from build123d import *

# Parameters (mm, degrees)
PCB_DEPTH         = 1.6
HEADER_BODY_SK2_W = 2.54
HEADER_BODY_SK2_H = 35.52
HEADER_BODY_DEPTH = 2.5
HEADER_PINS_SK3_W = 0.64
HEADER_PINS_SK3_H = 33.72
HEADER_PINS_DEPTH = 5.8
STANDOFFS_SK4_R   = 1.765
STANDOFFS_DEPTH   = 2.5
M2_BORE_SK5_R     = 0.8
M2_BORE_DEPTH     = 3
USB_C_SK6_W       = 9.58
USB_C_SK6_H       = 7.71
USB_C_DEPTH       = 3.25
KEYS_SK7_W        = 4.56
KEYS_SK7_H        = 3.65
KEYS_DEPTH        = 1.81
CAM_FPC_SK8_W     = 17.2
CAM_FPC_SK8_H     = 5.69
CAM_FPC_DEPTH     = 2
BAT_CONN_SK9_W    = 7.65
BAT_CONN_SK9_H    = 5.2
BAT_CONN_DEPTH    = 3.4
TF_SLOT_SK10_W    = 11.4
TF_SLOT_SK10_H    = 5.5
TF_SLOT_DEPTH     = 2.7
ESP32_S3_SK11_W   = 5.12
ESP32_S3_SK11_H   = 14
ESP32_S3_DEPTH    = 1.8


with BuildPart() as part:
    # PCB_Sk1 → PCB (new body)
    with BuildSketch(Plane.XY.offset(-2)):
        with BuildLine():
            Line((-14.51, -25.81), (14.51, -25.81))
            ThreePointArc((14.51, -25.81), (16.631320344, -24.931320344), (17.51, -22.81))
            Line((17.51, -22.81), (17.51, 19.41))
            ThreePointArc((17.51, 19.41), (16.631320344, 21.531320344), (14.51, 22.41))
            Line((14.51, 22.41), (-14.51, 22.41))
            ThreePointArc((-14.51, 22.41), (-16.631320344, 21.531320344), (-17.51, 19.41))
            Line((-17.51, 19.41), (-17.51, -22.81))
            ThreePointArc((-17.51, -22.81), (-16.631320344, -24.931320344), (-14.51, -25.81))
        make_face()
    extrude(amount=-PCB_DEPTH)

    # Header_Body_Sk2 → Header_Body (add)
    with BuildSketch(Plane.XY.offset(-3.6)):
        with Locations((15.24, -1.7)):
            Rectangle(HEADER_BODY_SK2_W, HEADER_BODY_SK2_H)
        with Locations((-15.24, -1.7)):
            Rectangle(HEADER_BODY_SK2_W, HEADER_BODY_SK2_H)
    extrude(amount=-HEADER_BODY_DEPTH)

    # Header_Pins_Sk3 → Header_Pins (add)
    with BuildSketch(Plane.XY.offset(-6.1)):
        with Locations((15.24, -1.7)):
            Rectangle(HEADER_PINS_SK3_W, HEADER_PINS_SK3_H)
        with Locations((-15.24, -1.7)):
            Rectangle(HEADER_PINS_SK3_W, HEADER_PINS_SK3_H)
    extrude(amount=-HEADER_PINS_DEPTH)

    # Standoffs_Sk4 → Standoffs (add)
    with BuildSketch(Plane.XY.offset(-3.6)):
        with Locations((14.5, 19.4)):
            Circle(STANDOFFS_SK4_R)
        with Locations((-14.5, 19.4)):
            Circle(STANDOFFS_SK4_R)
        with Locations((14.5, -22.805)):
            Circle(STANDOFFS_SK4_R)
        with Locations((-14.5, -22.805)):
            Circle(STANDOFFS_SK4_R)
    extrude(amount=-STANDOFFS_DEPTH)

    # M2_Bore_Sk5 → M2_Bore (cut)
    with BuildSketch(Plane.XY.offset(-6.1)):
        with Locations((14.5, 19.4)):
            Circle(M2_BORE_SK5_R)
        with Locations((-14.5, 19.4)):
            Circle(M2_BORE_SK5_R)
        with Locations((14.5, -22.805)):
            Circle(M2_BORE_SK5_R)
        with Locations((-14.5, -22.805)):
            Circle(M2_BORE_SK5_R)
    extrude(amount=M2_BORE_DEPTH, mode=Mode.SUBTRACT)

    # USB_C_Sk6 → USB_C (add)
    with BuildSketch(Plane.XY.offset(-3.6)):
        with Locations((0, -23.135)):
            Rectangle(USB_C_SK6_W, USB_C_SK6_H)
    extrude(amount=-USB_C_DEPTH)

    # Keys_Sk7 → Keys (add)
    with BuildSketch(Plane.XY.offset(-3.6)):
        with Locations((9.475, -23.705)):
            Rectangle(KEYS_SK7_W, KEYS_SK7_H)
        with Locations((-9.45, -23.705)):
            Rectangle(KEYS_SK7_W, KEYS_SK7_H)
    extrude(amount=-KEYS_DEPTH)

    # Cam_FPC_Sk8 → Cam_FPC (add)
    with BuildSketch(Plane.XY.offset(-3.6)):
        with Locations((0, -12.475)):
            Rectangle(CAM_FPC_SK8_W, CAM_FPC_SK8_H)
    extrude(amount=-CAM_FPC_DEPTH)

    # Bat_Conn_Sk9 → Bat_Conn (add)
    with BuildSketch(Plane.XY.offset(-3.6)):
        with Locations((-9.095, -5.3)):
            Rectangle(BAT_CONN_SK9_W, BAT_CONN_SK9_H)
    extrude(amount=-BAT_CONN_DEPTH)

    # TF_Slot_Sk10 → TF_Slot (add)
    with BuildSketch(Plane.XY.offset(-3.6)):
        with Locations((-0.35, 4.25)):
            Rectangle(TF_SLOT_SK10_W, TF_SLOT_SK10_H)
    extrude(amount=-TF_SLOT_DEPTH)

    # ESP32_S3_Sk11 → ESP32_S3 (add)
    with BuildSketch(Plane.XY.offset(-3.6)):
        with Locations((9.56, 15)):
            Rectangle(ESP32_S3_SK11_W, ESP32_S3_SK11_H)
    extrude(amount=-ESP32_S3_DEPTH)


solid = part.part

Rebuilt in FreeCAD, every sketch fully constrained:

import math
import FreeCAD as App
import Part
import Sketcher

doc = App.newDocument("Part")
body = doc.addObject("PartDesign::Body", "Body")

# Sketch on XY plane
sketch1 = body.newObject("Sketcher::SketchObject", "Sketch")
sketch1.AttachmentSupport = (doc.getObject("XY_Plane"), [""])
sketch1.MapMode = "FlatFace"
sketch1.AttachmentOffset = App.Placement(App.Vector(0, 0, -2), App.Rotation())
sketch1.addGeometry([
    Part.LineSegment(App.Vector(-14.5, -25.8, 0), App.Vector(14.5, -25.8, 0)),  # 0
    Part.ArcOfCircle(Part.Circle(App.Vector(14.5, -22.8, 0), App.Vector(0, 0, 1), 3), math.radians(-90), math.radians(0)),  # 1
    Part.LineSegment(App.Vector(17.5, -22.8, 0), App.Vector(17.5, 19.4, 0)),  # 2
    Part.ArcOfCircle(Part.Circle(App.Vector(14.5, 19.4, 0), App.Vector(0, 0, 1), 3), math.radians(0), math.radians(90)),  # 3
    Part.LineSegment(App.Vector(14.5, 22.4, 0), App.Vector(-14.5, 22.4, 0)),  # 4
    Part.ArcOfCircle(Part.Circle(App.Vector(-14.5, 19.4, 0), App.Vector(0, 0, 1), 3), math.radians(90), math.radians(180)),  # 5
    Part.LineSegment(App.Vector(-17.5, 19.4, 0), App.Vector(-17.5, -22.8, 0)),  # 6
    Part.ArcOfCircle(Part.Circle(App.Vector(-14.5, -22.8, 0), App.Vector(0, 0, 1), 3), math.radians(180), math.radians(270)),  # 7
], False)
sketch1.addConstraint([
    Sketcher.Constraint("Tangent", 0, 2, 1, 1),
    Sketcher.Constraint("Tangent", 1, 2, 2, 1),
    Sketcher.Constraint("Tangent", 2, 2, 3, 1),
    Sketcher.Constraint("Tangent", 3, 2, 4, 1),
    Sketcher.Constraint("Tangent", 4, 2, 5, 1),
    Sketcher.Constraint("Tangent", 5, 2, 6, 1),
    Sketcher.Constraint("Tangent", 6, 2, 7, 1),
    Sketcher.Constraint("Tangent", 7, 2, 0, 1),
    Sketcher.Constraint("Horizontal", 0),
    Sketcher.Constraint("Vertical", 2),
    Sketcher.Constraint("Horizontal", 4),
    Sketcher.Constraint("Vertical", 6),
    Sketcher.Constraint("Equal", 1, 3),
    Sketcher.Constraint("Equal", 3, 5),
    Sketcher.Constraint("Equal", 5, 7),
    Sketcher.Constraint("Radius", 1, 3.0),
    Sketcher.Constraint("DistanceX", 0, 1, 0, 2, 29.02),
    Sketcher.Constraint("DistanceY", 2, 1, 2, 2, 42.22),
    Sketcher.Constraint("DistanceX", -1, 1, 1, 3, 14.51),
    Sketcher.Constraint("DistanceY", 1, 3, -1, 1, 22.81),
])
pad1 = body.newObject("PartDesign::Pad", "Pad")
pad1.Profile = sketch1
pad1.Length = 1.6
pad1.Reversed = True

# Sketch on XY plane
sketch2 = body.newObject("Sketcher::SketchObject", "Sketch001")
sketch2.AttachmentSupport = (doc.getObject("XY_Plane"), [""])
sketch2.MapMode = "FlatFace"
sketch2.AttachmentOffset = App.Placement(App.Vector(0, 0, -3.6), App.Rotation())
sketch2.addGeometry([
    Part.LineSegment(App.Vector(14, 16.1, 0), App.Vector(14, -19.5, 0)),  # 0
    Part.LineSegment(App.Vector(14, -19.5, 0), App.Vector(16.5, -19.5, 0)),  # 1
    Part.LineSegment(App.Vector(16.5, -19.5, 0), App.Vector(16.5, 16.1, 0)),  # 2
    Part.LineSegment(App.Vector(16.5, 16.1, 0), App.Vector(14, 16.1, 0)),  # 3
    Part.LineSegment(App.Vector(-16.5, 16.1, 0), App.Vector(-16.5, -19.5, 0)),  # 4
    Part.LineSegment(App.Vector(-16.5, -19.5, 0), App.Vector(-14, -19.5, 0)),  # 5
    Part.LineSegment(App.Vector(-14, -19.5, 0), App.Vector(-14, 16.1, 0)),  # 6
    Part.LineSegment(App.Vector(-14, 16.1, 0), App.Vector(-16.5, 16.1, 0)),  # 7
], False)
sketch2.addConstraint([
    Sketcher.Constraint("Coincident", 0, 2, 1, 1),
    Sketcher.Constraint("Coincident", 1, 2, 2, 1),
    Sketcher.Constraint("Coincident", 2, 2, 3, 1),
    Sketcher.Constraint("Coincident", 3, 2, 0, 1),
    Sketcher.Constraint("Coincident", 4, 2, 5, 1),
    Sketcher.Constraint("Coincident", 5, 2, 6, 1),
    Sketcher.Constraint("Coincident", 6, 2, 7, 1),
    Sketcher.Constraint("Coincident", 7, 2, 4, 1),
    Sketcher.Constraint("Vertical", 0),
    Sketcher.Constraint("Horizontal", 1),
    Sketcher.Constraint("Vertical", 2),
    Sketcher.Constraint("Horizontal", 3),
    Sketcher.Constraint("Vertical", 4),
    Sketcher.Constraint("Horizontal", 5),
    Sketcher.Constraint("Vertical", 6),
    Sketcher.Constraint("Horizontal", 7),
    Sketcher.Constraint("Symmetric", 1, 2, 4, 2, -2),
    Sketcher.Constraint("Symmetric", 3, 2, 6, 2, -2),
    Sketcher.Constraint("DistanceX", 1, 1, 1, 2, 2.54),
    Sketcher.Constraint("DistanceY", 0, 2, 0, 1, 35.52),
    Sketcher.Constraint("DistanceX", -1, 1, 0, 2, 13.97),
    Sketcher.Constraint("DistanceY", 0, 2, -1, 1, 19.46),
])
pad2 = body.newObject("PartDesign::Pad", "Pad001")
pad2.Profile = sketch2
pad2.Length = 2.5
pad2.Reversed = True

# Sketch on XY plane
sketch3 = body.newObject("Sketcher::SketchObject", "Sketch002")
sketch3.AttachmentSupport = (doc.getObject("XY_Plane"), [""])
sketch3.MapMode = "FlatFace"
sketch3.AttachmentOffset = App.Placement(App.Vector(0, 0, -6.1), App.Rotation())
sketch3.addGeometry([
    Part.LineSegment(App.Vector(14.9, 15.2, 0), App.Vector(14.9, -18.6, 0)),  # 0
    Part.LineSegment(App.Vector(14.9, -18.6, 0), App.Vector(15.6, -18.6, 0)),  # 1
    Part.LineSegment(App.Vector(15.6, -18.6, 0), App.Vector(15.6, 15.2, 0)),  # 2
    Part.LineSegment(App.Vector(15.6, 15.2, 0), App.Vector(14.9, 15.2, 0)),  # 3
    Part.LineSegment(App.Vector(-15.6, 15.2, 0), App.Vector(-15.6, -18.6, 0)),  # 4
    Part.LineSegment(App.Vector(-15.6, -18.6, 0), App.Vector(-14.9, -18.6, 0)),  # 5
    Part.LineSegment(App.Vector(-14.9, -18.6, 0), App.Vector(-14.9, 15.2, 0)),  # 6
    Part.LineSegment(App.Vector(-14.9, 15.2, 0), App.Vector(-15.6, 15.2, 0)),  # 7
], False)
sketch3.addConstraint([
    Sketcher.Constraint("Coincident", 0, 2, 1, 1),
    Sketcher.Constraint("Coincident", 1, 2, 2, 1),
    Sketcher.Constraint("Coincident", 2, 2, 3, 1),
    Sketcher.Constraint("Coincident", 3, 2, 0, 1),
    Sketcher.Constraint("Coincident", 4, 2, 5, 1),
    Sketcher.Constraint("Coincident", 5, 2, 6, 1),
    Sketcher.Constraint("Coincident", 6, 2, 7, 1),
    Sketcher.Constraint("Coincident", 7, 2, 4, 1),
    Sketcher.Constraint("Vertical", 0),
    Sketcher.Constraint("Horizontal", 1),
    Sketcher.Constraint("Vertical", 2),
    Sketcher.Constraint("Horizontal", 3),
    Sketcher.Constraint("Vertical", 4),
    Sketcher.Constraint("Horizontal", 5),
    Sketcher.Constraint("Vertical", 6),
    Sketcher.Constraint("Horizontal", 7),
    Sketcher.Constraint("Symmetric", 1, 2, 4, 2, -2),
    Sketcher.Constraint("Symmetric", 3, 2, 6, 2, -2),
    Sketcher.Constraint("DistanceX", 1, 1, 1, 2, 0.64),
    Sketcher.Constraint("DistanceY", 0, 2, 0, 1, 33.72),
    Sketcher.Constraint("DistanceX", -1, 1, 0, 2, 14.92),
    Sketcher.Constraint("DistanceY", 0, 2, -1, 1, 18.56),
])
pad3 = body.newObject("PartDesign::Pad", "Pad002")
pad3.Profile = sketch3
pad3.Length = 5.8
pad3.Reversed = True

# Sketch on XY plane
sketch4 = body.newObject("Sketcher::SketchObject", "Sketch003")
sketch4.AttachmentSupport = (doc.getObject("XY_Plane"), [""])
sketch4.MapMode = "FlatFace"
sketch4.AttachmentOffset = App.Placement(App.Vector(0, 0, -3.6), App.Rotation())
sketch4.addGeometry([
    Part.Circle(App.Vector(14.5, 19.4, 0), App.Vector(0, 0, 1), 1.8),
    Part.Circle(App.Vector(-14.5, 19.4, 0), App.Vector(0, 0, 1), 1.8),
    Part.Circle(App.Vector(14.5, -22.8, 0), App.Vector(0, 0, 1), 1.8),
    Part.Circle(App.Vector(-14.5, -22.8, 0), App.Vector(0, 0, 1), 1.8),
], False)
sketch4.addConstraint([
    Sketcher.Constraint("Equal", 0, 1),
    Sketcher.Constraint("Equal", 1, 2),
    Sketcher.Constraint("Equal", 2, 3),
    Sketcher.Constraint("Symmetric", 0, 3, 1, 3, -2),
    Sketcher.Constraint("Symmetric", 2, 3, 3, 3, -2),
    Sketcher.Constraint("Vertical", 0, 3, 2, 3),
    Sketcher.Constraint("Diameter", 0, 3.53),
    Sketcher.Constraint("DistanceX", 1, 3, 0, 3, 29.0),
    Sketcher.Constraint("DistanceY", -1, 1, 0, 3, 19.4),
    Sketcher.Constraint("DistanceY", 2, 3, -1, 1, 22.805),
])
pad4 = body.newObject("PartDesign::Pad", "Pad003")
pad4.Profile = sketch4
pad4.Length = 2.5
pad4.Reversed = True

# Sketch on XY plane
sketch5 = body.newObject("Sketcher::SketchObject", "Sketch004")
sketch5.AttachmentSupport = (doc.getObject("XY_Plane"), [""])
sketch5.MapMode = "FlatFace"
sketch5.AttachmentOffset = App.Placement(App.Vector(0, 0, -6.1), App.Rotation())
sketch5.addGeometry([
    Part.Circle(App.Vector(14.5, 19.4, 0), App.Vector(0, 0, 1), 0.8),
    Part.Circle(App.Vector(-14.5, 19.4, 0), App.Vector(0, 0, 1), 0.8),
    Part.Circle(App.Vector(14.5, -22.8, 0), App.Vector(0, 0, 1), 0.8),
    Part.Circle(App.Vector(-14.5, -22.8, 0), App.Vector(0, 0, 1), 0.8),
], False)
sketch5.addConstraint([
    Sketcher.Constraint("Equal", 0, 1),
    Sketcher.Constraint("Equal", 1, 2),
    Sketcher.Constraint("Equal", 2, 3),
    Sketcher.Constraint("Symmetric", 0, 3, 1, 3, -2),
    Sketcher.Constraint("Symmetric", 2, 3, 3, 3, -2),
    Sketcher.Constraint("Vertical", 0, 3, 2, 3),
    Sketcher.Constraint("Diameter", 0, 1.6),
    Sketcher.Constraint("DistanceX", 1, 3, 0, 3, 29.0),
    Sketcher.Constraint("DistanceY", -1, 1, 0, 3, 19.4),
    Sketcher.Constraint("DistanceY", 2, 3, -1, 1, 22.805),
])
pocket1 = body.newObject("PartDesign::Pocket", "Pocket")
pocket1.Profile = sketch5
pocket1.Length = 3
pocket1.Reversed = True

# Sketch on XY plane
sketch6 = body.newObject("Sketcher::SketchObject", "Sketch005")
sketch6.AttachmentSupport = (doc.getObject("XY_Plane"), [""])
sketch6.MapMode = "FlatFace"
sketch6.AttachmentOffset = App.Placement(App.Vector(0, 0, -3.6), App.Rotation())
sketch6.addGeometry([
    Part.LineSegment(App.Vector(-5, -19, 0), App.Vector(-5, -27, 0)),
    Part.LineSegment(App.Vector(-5, -27, 0), App.Vector(5, -27, 0)),
    Part.LineSegment(App.Vector(5, -27, 0), App.Vector(5, -19, 0)),
    Part.LineSegment(App.Vector(5, -19, 0), App.Vector(-5, -19, 0)),
], False)
sketch6.addConstraint([
    Sketcher.Constraint("Coincident", 0, 2, 1, 1),
    Sketcher.Constraint("Coincident", 1, 2, 2, 1),
    Sketcher.Constraint("Coincident", 2, 2, 3, 1),
    Sketcher.Constraint("Coincident", 3, 2, 0, 1),
    Sketcher.Constraint("Vertical", 0),
    Sketcher.Constraint("Horizontal", 1),
    Sketcher.Constraint("Vertical", 2),
    Sketcher.Constraint("Horizontal", 3),
    Sketcher.Constraint("DistanceX", 1, 1, 1, 2, 9.58),
    Sketcher.Constraint("DistanceY", 0, 2, 0, 1, 7.71),
    Sketcher.Constraint("DistanceX", 0, 2, -1, 1, 4.79),
    Sketcher.Constraint("DistanceY", 0, 2, -1, 1, 26.99),
])
pad5 = body.newObject("PartDesign::Pad", "Pad004")
pad5.Profile = sketch6
pad5.Length = 3.25
pad5.Reversed = True

# Sketch on XY plane
sketch7 = body.newObject("Sketcher::SketchObject", "Sketch006")
sketch7.AttachmentSupport = (doc.getObject("XY_Plane"), [""])
sketch7.MapMode = "FlatFace"
sketch7.AttachmentOffset = App.Placement(App.Vector(0, 0, -3.6), App.Rotation())
sketch7.addGeometry([
    Part.LineSegment(App.Vector(7.2, -21.9, 0), App.Vector(7.2, -25.5, 0)),  # 0
    Part.LineSegment(App.Vector(7.2, -25.5, 0), App.Vector(11.8, -25.5, 0)),  # 1
    Part.LineSegment(App.Vector(11.8, -25.5, 0), App.Vector(11.8, -21.9, 0)),  # 2
    Part.LineSegment(App.Vector(11.8, -21.9, 0), App.Vector(7.2, -21.9, 0)),  # 3
    Part.LineSegment(App.Vector(-11.7, -21.9, 0), App.Vector(-11.7, -25.5, 0)),  # 4
    Part.LineSegment(App.Vector(-11.7, -25.5, 0), App.Vector(-7.2, -25.5, 0)),  # 5
    Part.LineSegment(App.Vector(-7.2, -25.5, 0), App.Vector(-7.2, -21.9, 0)),  # 6
    Part.LineSegment(App.Vector(-7.2, -21.9, 0), App.Vector(-11.7, -21.9, 0)),  # 7
], False)
sketch7.addConstraint([
    Sketcher.Constraint("Coincident", 0, 2, 1, 1),
    Sketcher.Constraint("Coincident", 1, 2, 2, 1),
    Sketcher.Constraint("Coincident", 2, 2, 3, 1),
    Sketcher.Constraint("Coincident", 3, 2, 0, 1),
    Sketcher.Constraint("Coincident", 4, 2, 5, 1),
    Sketcher.Constraint("Coincident", 5, 2, 6, 1),
    Sketcher.Constraint("Coincident", 6, 2, 7, 1),
    Sketcher.Constraint("Coincident", 7, 2, 4, 1),
    Sketcher.Constraint("Vertical", 0),
    Sketcher.Constraint("Horizontal", 1),
    Sketcher.Constraint("Vertical", 2),
    Sketcher.Constraint("Horizontal", 3),
    Sketcher.Constraint("Vertical", 4),
    Sketcher.Constraint("Horizontal", 5),
    Sketcher.Constraint("Vertical", 6),
    Sketcher.Constraint("Horizontal", 7),
    Sketcher.Constraint("Horizontal", 1, 2, 4, 2),
    Sketcher.Constraint("Horizontal", 3, 2, 6, 2),
    Sketcher.Constraint("Equal", 3, 5),
    Sketcher.Constraint("DistanceX", 1, 1, 1, 2, 4.56),
    Sketcher.Constraint("DistanceY", 0, 2, 0, 1, 3.65),
    Sketcher.Constraint("DistanceY", 0, 2, -1, 1, 25.53),
    Sketcher.Constraint("DistanceX", 4, 2, -1, 1, 11.73),
    Sketcher.Constraint("DistanceX", -1, 1, 0, 2, 7.195),
])
pad6 = body.newObject("PartDesign::Pad", "Pad005")
pad6.Profile = sketch7
pad6.Length = 1.81
pad6.Reversed = True

# Sketch on XY plane
sketch8 = body.newObject("Sketcher::SketchObject", "Sketch007")
sketch8.AttachmentSupport = (doc.getObject("XY_Plane"), [""])
sketch8.MapMode = "FlatFace"
sketch8.AttachmentOffset = App.Placement(App.Vector(0, 0, -3.6), App.Rotation())
sketch8.addGeometry([
    Part.LineSegment(App.Vector(-9, -10, 0), App.Vector(-9, -15, 0)),
    Part.LineSegment(App.Vector(-9, -15, 0), App.Vector(9, -15, 0)),
    Part.LineSegment(App.Vector(9, -15, 0), App.Vector(9, -10, 0)),
    Part.LineSegment(App.Vector(9, -10, 0), App.Vector(-9, -10, 0)),
], False)
sketch8.addConstraint([
    Sketcher.Constraint("Coincident", 0, 2, 1, 1),
    Sketcher.Constraint("Coincident", 1, 2, 2, 1),
    Sketcher.Constraint("Coincident", 2, 2, 3, 1),
    Sketcher.Constraint("Coincident", 3, 2, 0, 1),
    Sketcher.Constraint("Vertical", 0),
    Sketcher.Constraint("Horizontal", 1),
    Sketcher.Constraint("Vertical", 2),
    Sketcher.Constraint("Horizontal", 3),
    Sketcher.Constraint("DistanceX", 1, 1, 1, 2, 17.2),
    Sketcher.Constraint("DistanceY", 0, 2, 0, 1, 5.69),
    Sketcher.Constraint("DistanceX", 0, 2, -1, 1, 8.6),
    Sketcher.Constraint("DistanceY", 0, 2, -1, 1, 15.32),
])
pad7 = body.newObject("PartDesign::Pad", "Pad006")
pad7.Profile = sketch8
pad7.Length = 2
pad7.Reversed = True

# Sketch on XY plane
sketch9 = body.newObject("Sketcher::SketchObject", "Sketch008")
sketch9.AttachmentSupport = (doc.getObject("XY_Plane"), [""])
sketch9.MapMode = "FlatFace"
sketch9.AttachmentOffset = App.Placement(App.Vector(0, 0, -3.6), App.Rotation())
sketch9.addGeometry([
    Part.LineSegment(App.Vector(-13, -3, 0), App.Vector(-13, -8, 0)),
    Part.LineSegment(App.Vector(-13, -8, 0), App.Vector(-5, -8, 0)),
    Part.LineSegment(App.Vector(-5, -8, 0), App.Vector(-5, -3, 0)),
    Part.LineSegment(App.Vector(-5, -3, 0), App.Vector(-13, -3, 0)),
], False)
sketch9.addConstraint([
    Sketcher.Constraint("Coincident", 0, 2, 1, 1),
    Sketcher.Constraint("Coincident", 1, 2, 2, 1),
    Sketcher.Constraint("Coincident", 2, 2, 3, 1),
    Sketcher.Constraint("Coincident", 3, 2, 0, 1),
    Sketcher.Constraint("Vertical", 0),
    Sketcher.Constraint("Horizontal", 1),
    Sketcher.Constraint("Vertical", 2),
    Sketcher.Constraint("Horizontal", 3),
    Sketcher.Constraint("DistanceY", 0, 2, 0, 1, 5.2),
    Sketcher.Constraint("DistanceX", 1, 1, 1, 2, 7.65),
    Sketcher.Constraint("DistanceY", 0, 2, -1, 1, 7.9),
    Sketcher.Constraint("DistanceX", 0, 2, -1, 1, 12.92),
])
pad8 = body.newObject("PartDesign::Pad", "Pad007")
pad8.Profile = sketch9
pad8.Length = 3.4
pad8.Reversed = True

# Sketch on XY plane
sketch10 = body.newObject("Sketcher::SketchObject", "Sketch009")
sketch10.AttachmentSupport = (doc.getObject("XY_Plane"), [""])
sketch10.MapMode = "FlatFace"
sketch10.AttachmentOffset = App.Placement(App.Vector(0, 0, -3.6), App.Rotation())
sketch10.addGeometry([
    Part.LineSegment(App.Vector(-6, 7, 0), App.Vector(-6, 2, 0)),
    Part.LineSegment(App.Vector(-6, 2, 0), App.Vector(5, 2, 0)),
    Part.LineSegment(App.Vector(5, 2, 0), App.Vector(5, 7, 0)),
    Part.LineSegment(App.Vector(5, 7, 0), App.Vector(-6, 7, 0)),
], False)
sketch10.addConstraint([
    Sketcher.Constraint("Coincident", 0, 2, 1, 1),
    Sketcher.Constraint("Coincident", 1, 2, 2, 1),
    Sketcher.Constraint("Coincident", 2, 2, 3, 1),
    Sketcher.Constraint("Coincident", 3, 2, 0, 1),
    Sketcher.Constraint("Vertical", 0),
    Sketcher.Constraint("Horizontal", 1),
    Sketcher.Constraint("Vertical", 2),
    Sketcher.Constraint("Horizontal", 3),
    Sketcher.Constraint("DistanceX", 1, 1, 1, 2, 11.4),
    Sketcher.Constraint("DistanceY", 0, 2, 0, 1, 5.5),
    Sketcher.Constraint("DistanceY", -1, 1, 2, 2, 7.0),
    Sketcher.Constraint("DistanceX", 0, 2, -1, 1, 6.05),
])
pad9 = body.newObject("PartDesign::Pad", "Pad008")
pad9.Profile = sketch10
pad9.Length = 2.7
pad9.Reversed = True

# Sketch on XY plane
sketch11 = body.newObject("Sketcher::SketchObject", "Sketch010")
sketch11.AttachmentSupport = (doc.getObject("XY_Plane"), [""])
sketch11.MapMode = "FlatFace"
sketch11.AttachmentOffset = App.Placement(App.Vector(0, 0, -3.6), App.Rotation())
sketch11.addGeometry([
    Part.LineSegment(App.Vector(7, 22, 0), App.Vector(7, 8, 0)),
    Part.LineSegment(App.Vector(7, 8, 0), App.Vector(12, 8, 0)),
    Part.LineSegment(App.Vector(12, 8, 0), App.Vector(12, 22, 0)),
    Part.LineSegment(App.Vector(12, 22, 0), App.Vector(7, 22, 0)),
], False)
sketch11.addConstraint([
    Sketcher.Constraint("Coincident", 0, 2, 1, 1),
    Sketcher.Constraint("Coincident", 1, 2, 2, 1),
    Sketcher.Constraint("Coincident", 2, 2, 3, 1),
    Sketcher.Constraint("Coincident", 3, 2, 0, 1),
    Sketcher.Constraint("Vertical", 0),
    Sketcher.Constraint("Horizontal", 1),
    Sketcher.Constraint("Vertical", 2),
    Sketcher.Constraint("Horizontal", 3),
    Sketcher.Constraint("DistanceY", 0, 2, 0, 1, 14.0),
    Sketcher.Constraint("DistanceX", -1, 1, 0, 2, 7.0),
    Sketcher.Constraint("DistanceY", -1, 1, 0, 2, 8.0),
    Sketcher.Constraint("DistanceX", 1, 1, 1, 2, 5.12),
])
pad10 = body.newObject("PartDesign::Pad", "Pad009")
pad10.Profile = sketch11
pad10.Length = 1.8
pad10.Reversed = True

doc.recompute()
